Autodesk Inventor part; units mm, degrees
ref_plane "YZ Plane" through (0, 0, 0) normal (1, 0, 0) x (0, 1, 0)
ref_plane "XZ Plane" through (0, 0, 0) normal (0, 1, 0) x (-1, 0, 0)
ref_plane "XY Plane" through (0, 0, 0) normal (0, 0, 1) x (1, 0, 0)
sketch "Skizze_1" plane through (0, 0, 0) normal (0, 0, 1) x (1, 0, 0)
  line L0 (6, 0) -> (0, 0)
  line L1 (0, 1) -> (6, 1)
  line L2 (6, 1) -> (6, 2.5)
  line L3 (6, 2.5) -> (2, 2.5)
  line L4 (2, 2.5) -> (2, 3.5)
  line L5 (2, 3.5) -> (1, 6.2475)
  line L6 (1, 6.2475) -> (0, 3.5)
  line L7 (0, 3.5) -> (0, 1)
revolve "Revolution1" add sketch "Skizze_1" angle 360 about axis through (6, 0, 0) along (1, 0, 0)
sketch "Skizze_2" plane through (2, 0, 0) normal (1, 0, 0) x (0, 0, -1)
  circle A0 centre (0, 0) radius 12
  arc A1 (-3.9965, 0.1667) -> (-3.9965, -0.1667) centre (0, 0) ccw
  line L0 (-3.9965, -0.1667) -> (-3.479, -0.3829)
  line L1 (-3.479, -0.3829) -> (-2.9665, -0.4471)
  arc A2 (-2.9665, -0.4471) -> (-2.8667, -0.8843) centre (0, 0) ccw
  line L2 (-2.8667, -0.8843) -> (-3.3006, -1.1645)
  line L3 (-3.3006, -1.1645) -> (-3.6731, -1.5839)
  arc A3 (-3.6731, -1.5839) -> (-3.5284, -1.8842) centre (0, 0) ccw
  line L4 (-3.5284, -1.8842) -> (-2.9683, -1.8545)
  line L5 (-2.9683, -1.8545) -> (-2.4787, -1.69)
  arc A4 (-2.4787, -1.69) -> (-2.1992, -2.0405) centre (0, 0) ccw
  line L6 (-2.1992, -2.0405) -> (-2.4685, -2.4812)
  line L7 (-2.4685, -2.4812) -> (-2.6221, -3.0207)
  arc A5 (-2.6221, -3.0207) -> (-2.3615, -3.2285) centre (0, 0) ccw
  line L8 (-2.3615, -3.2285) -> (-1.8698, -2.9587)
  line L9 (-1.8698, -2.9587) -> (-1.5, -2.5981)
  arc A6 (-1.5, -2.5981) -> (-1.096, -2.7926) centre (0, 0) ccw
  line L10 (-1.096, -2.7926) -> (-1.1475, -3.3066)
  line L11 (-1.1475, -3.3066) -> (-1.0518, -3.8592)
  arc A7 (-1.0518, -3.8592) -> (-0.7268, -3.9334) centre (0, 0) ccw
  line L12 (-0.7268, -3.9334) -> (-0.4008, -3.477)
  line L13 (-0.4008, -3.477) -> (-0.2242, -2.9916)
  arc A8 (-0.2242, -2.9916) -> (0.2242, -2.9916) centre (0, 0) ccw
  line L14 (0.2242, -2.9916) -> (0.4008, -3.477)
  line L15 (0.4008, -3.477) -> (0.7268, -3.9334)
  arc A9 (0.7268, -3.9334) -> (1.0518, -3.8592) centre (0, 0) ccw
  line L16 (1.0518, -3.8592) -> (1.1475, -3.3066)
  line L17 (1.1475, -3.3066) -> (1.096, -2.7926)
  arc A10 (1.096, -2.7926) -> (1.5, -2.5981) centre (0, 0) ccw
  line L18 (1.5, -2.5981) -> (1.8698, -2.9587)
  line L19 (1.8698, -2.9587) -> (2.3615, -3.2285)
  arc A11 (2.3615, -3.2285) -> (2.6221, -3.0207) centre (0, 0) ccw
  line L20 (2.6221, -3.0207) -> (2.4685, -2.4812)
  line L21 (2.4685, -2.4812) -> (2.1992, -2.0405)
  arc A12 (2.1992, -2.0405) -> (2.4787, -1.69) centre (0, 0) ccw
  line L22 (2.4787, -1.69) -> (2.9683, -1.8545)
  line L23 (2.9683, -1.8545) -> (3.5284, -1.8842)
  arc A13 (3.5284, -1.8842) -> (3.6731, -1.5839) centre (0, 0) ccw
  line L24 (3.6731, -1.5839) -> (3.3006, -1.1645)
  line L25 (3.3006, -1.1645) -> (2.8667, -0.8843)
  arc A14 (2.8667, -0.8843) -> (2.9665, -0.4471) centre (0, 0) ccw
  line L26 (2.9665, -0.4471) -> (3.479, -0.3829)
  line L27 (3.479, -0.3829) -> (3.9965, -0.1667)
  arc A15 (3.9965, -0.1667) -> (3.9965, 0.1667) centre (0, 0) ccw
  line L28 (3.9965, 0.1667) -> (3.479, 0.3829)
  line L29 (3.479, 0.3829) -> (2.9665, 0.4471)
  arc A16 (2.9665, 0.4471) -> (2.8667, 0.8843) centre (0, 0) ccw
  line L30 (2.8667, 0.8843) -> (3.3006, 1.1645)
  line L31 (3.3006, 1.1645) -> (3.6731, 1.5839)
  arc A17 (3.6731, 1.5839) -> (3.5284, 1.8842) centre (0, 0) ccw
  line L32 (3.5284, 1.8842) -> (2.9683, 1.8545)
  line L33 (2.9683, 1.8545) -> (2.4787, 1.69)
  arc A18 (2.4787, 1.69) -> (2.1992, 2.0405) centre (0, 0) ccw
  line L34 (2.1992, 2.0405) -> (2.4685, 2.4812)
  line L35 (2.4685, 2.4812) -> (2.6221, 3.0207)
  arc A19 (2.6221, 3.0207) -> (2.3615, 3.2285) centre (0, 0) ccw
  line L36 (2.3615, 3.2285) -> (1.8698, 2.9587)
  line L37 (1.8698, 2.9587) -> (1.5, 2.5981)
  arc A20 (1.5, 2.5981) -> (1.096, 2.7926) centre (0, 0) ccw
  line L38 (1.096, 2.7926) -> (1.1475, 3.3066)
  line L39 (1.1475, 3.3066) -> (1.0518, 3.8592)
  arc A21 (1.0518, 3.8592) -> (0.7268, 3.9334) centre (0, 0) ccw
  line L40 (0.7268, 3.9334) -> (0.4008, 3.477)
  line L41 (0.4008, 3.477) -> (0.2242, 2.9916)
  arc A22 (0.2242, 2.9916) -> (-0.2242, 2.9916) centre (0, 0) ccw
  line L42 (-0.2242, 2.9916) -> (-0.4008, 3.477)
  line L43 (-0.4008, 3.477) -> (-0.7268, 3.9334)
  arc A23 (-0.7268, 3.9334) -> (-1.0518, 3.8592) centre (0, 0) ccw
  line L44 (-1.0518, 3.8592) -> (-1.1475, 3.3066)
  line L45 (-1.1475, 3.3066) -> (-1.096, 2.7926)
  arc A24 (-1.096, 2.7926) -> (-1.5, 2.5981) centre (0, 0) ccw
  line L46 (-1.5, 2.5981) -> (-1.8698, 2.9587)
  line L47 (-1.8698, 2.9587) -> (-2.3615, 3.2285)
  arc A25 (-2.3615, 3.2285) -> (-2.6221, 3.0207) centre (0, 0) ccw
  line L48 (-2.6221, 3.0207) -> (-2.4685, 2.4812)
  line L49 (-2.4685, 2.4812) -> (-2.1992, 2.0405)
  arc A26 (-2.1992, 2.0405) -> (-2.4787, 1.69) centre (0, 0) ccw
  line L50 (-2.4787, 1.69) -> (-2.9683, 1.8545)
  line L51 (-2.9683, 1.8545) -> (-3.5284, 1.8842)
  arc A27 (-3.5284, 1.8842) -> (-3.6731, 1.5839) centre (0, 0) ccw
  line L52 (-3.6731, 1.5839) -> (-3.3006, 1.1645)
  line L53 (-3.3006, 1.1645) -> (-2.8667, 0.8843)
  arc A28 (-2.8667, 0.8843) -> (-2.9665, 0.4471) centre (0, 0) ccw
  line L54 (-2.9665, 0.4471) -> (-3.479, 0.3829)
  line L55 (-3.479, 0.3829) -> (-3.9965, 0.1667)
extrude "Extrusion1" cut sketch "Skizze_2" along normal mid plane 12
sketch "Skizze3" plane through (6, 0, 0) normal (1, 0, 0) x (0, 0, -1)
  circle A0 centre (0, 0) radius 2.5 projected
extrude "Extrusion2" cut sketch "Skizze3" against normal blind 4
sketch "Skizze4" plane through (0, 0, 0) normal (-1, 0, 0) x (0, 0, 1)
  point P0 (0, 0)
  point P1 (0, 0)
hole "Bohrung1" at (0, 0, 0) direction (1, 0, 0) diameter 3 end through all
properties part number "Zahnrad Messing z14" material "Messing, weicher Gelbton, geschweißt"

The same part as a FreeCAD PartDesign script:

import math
import FreeCAD as App
import Part
import Sketcher
Q = App.Units.Quantity

doc = App.newDocument("Part")
body = doc.addObject("PartDesign::Body", "Body")

# Sketch on XY plane
sketch1 = doc.addObject("Sketcher::SketchObject", "Sketch")
body.addObject(sketch1)
sketch1.AttachmentSupport = (doc.XY_Plane, [""])
sketch1.MapMode = "FlatFace"
sketch1.addGeometry(Part.LineSegment(App.Vector(0, 3.5, 0), App.Vector(0, 1, 0)), False)
sketch1.addGeometry(Part.LineSegment(App.Vector(0, 1, 0), App.Vector(6, 1, 0)), False)
sketch1.addGeometry(Part.LineSegment(App.Vector(6, 1, 0), App.Vector(6, 2.5, 0)), False)
sketch1.addGeometry(Part.LineSegment(App.Vector(6, 2.5, 0), App.Vector(2, 2.5, 0)), False)
sketch1.addGeometry(Part.LineSegment(App.Vector(2, 2.5, 0), App.Vector(2, 3.5, 0)), False)
sketch1.addGeometry(Part.LineSegment(App.Vector(2, 3.5, 0), App.Vector(1, 6.2, 0)), False)
sketch1.addGeometry(Part.LineSegment(App.Vector(1, 6.2, 0), App.Vector(0, 3.5, 0)), False)
sketch1.addConstraint(Sketcher.Constraint("Coincident", 0, 2, 1, 1))
sketch1.addConstraint(Sketcher.Constraint("Coincident", 1, 2, 2, 1))
sketch1.addConstraint(Sketcher.Constraint("Coincident", 2, 2, 3, 1))
sketch1.addConstraint(Sketcher.Constraint("Coincident", 3, 2, 4, 1))
sketch1.addConstraint(Sketcher.Constraint("Coincident", 4, 2, 5, 1))
sketch1.addConstraint(Sketcher.Constraint("Coincident", 5, 2, 6, 1))
sketch1.addConstraint(Sketcher.Constraint("Coincident", 6, 2, 0, 1))
sketch1.addConstraint(Sketcher.Constraint("Vertical", 0))
sketch1.addConstraint(Sketcher.Constraint("Horizontal", 1))
sketch1.addConstraint(Sketcher.Constraint("Vertical", 2))
sketch1.addConstraint(Sketcher.Constraint("Horizontal", 3))
sketch1.addConstraint(Sketcher.Constraint("Vertical", 4))
sketch1.addConstraint(Sketcher.Constraint("PointOnObject", 0, 2, -2))
sketch1.addConstraint(Sketcher.Constraint("Horizontal", 4, 2, 6, 2))
sketch1.addConstraint(Sketcher.Constraint("Equal", 5, 6))
sketch1.addConstraint(Sketcher.Constraint("DistanceX", 1, 1, 1, 2, 6.0))
sketch1.addConstraint(Sketcher.Constraint("DistanceX", 3, 2, 3, 1, 4.0))
sketch1.addConstraint(Sketcher.Constraint("DistanceY", 4, 1, 4, 2, 1.0))
sketch1.addConstraint(Sketcher.Constraint("Angle", 5, Q("109.9998 deg")))
sketch1.addConstraint(Sketcher.Constraint("DistanceY", 0, 2, 0, 1, 2.5))
sketch1.addConstraint(Sketcher.Constraint("DistanceY", -1, 1, 0, 2, 1.0))
revolution = doc.addObject("PartDesign::Revolution", "Revolution")
body.addObject(revolution)
revolution.Profile = sketch1
revolution.ReferenceAxis = (sketch1, ["H_Axis"])
revolution.Angle = 360

# Sketch on YZ plane
sketch2 = doc.addObject("Sketcher::SketchObject", "Sketch001")
body.addObject(sketch2)
sketch2.AttachmentSupport = (doc.YZ_Plane, [""])
sketch2.MapMode = "FlatFace"
sketch2.AttachmentOffset = App.Placement(App.Vector(0, 0, 2), App.Rotation())
sketch2.addGeometry(Part.Circle(App.Vector(0, 0, 0), App.Vector(0, 0, 1), 12), False)
sketch2.addGeometry(Part.ArcOfCircle(Part.Circle(App.Vector(0, 0, 0), App.Vector(0, 0, 1), 3.999975), math.radians(87.611492), math.radians(92.388508)), False)
sketch2.addGeometry(Part.LineSegment(App.Vector(0.1667, 3.9965, 0), App.Vector(0.3829, 3.479, 0)), False)
sketch2.addGeometry(Part.LineSegment(App.Vector(0.3829, 3.479, 0), App.Vector(0.4471, 2.9665, 0)), False)
sketch2.addGeometry(Part.ArcOfCircle(Part.Circle(App.Vector(-0.000504, -0.001881, 0), App.Vector(0, 0, 1), 3.001939), math.radians(72.8578), math.radians(81.424936)), False)
sketch2.addGeometry(Part.LineSegment(App.Vector(0.8843, 2.8667, 0), App.Vector(1.1645, 3.3006, 0)), False)
sketch2.addGeometry(Part.LineSegment(App.Vector(1.1645, 3.3006, 0), App.Vector(1.5839, 3.6731, 0)), False)
sketch2.addGeometry(Part.ArcOfCircle(Part.Circle(App.Vector(-0.019313, -0.038054, 0), App.Vector(0, 0, 1), 4.042643), math.radians(61.909952), math.radians(66.635726)), False)
sketch2.addGeometry(Part.LineSegment(App.Vector(1.8842, 3.5284, 0), App.Vector(1.8545, 2.9683, 0)), False)
sketch2.addGeometry(Part.LineSegment(App.Vector(1.8545, 2.9683, 0), App.Vector(1.69, 2.4787, 0)), False)
sketch2.addGeometry(Part.ArcOfCircle(Part.Circle(App.Vector(0.001307, 0.001519, 0), App.Vector(0, 0, 1), 2.998018), math.radians(47.142257), math.radians(55.717768)), False)
sketch2.addGeometry(Part.LineSegment(App.Vector(2.0405, 2.1992, 0), App.Vector(2.4812, 2.4685, 0)), False)
sketch2.addGeometry(Part.LineSegment(App.Vector(2.4812, 2.4685, 0), App.Vector(3.0207, 2.6221, 0)), False)
sketch2.addGeometry(Part.ArcOfCircle(Part.Circle(App.Vector(-0.008168, -0.00624, 0), App.Vector(0, 0, 1), 4.010263), math.radians(36.186822), math.radians(40.950239)), False)
sketch2.addGeometry(Part.LineSegment(App.Vector(3.2285, 2.3615, 0), App.Vector(2.9587, 1.8698, 0)), False)
sketch2.addGeometry(Part.LineSegment(App.Vector(2.9587, 1.8698, 0), App.Vector(2.5981, 1.5, 0)), False)
sketch2.addGeometry(Part.ArcOfCircle(Part.Circle(App.Vector(-0.008028, -0.003503, 0), App.Vector(0, 0, 1), 3.008725), math.radians(21.434546), math.radians(29.981097)), False)
sketch2.addGeometry(Part.LineSegment(App.Vector(2.7926, 1.096, 0), App.Vector(3.3066, 1.1475, 0)), False)
sketch2.addGeometry(Part.LineSegment(App.Vector(3.3066, 1.1475, 0), App.Vector(3.8592, 1.0518, 0)), False)
sketch2.addGeometry(Part.ArcOfCircle(Part.Circle(App.Vector(0.01166, 0.002407, 0), App.Vector(0, 0, 1), 3.988081), math.radians(10.465273), math.radians(15.256007)), False)
sketch2.addGeometry(Part.LineSegment(App.Vector(3.9334, 0.7268, 0), App.Vector(3.477, 0.4008, 0)), False)
sketch2.addGeometry(Part.LineSegment(App.Vector(3.477, 0.4008, 0), App.Vector(2.9916, 0.2242, 0)), False)
sketch2.addGeometry(Part.ArcOfCircle(Part.Circle(App.Vector(0, 0, 0), App.Vector(0, 0, 1), 2.999989), math.radians(-4.285916), math.radians(4.285916)), False)
sketch2.addGeometry(Part.LineSegment(App.Vector(2.9916, -0.2242, 0), App.Vector(3.477, -0.4008, 0)), False)
sketch2.addGeometry(Part.LineSegment(App.Vector(3.477, -0.4008, 0), App.Vector(3.9334, -0.7268, 0)), False)
sketch2.addGeometry(Part.ArcOfCircle(Part.Circle(App.Vector(-0.011619, 0.002908, 0), App.Vector(0, 0, 1), 4.011938), math.radians(-15.241755), math.radians(-10.479525)), False)
sketch2.addGeometry(Part.LineSegment(App.Vector(3.8592, -1.0518, 0), App.Vector(3.3066, -1.1475, 0)), False)
sketch2.addGeometry(Part.LineSegment(App.Vector(3.3066, -1.1475, 0), App.Vector(2.7926, -1.096, 0)), False)
sketch2.addGeometry(Part.ArcOfCircle(Part.Circle(App.Vector(0.007699, -0.004069, 0), App.Vector(0, 0, 1), 2.991318), math.radians(-30.00601), math.radians(-21.409634)), False)
sketch2.addGeometry(Part.LineSegment(App.Vector(2.5981, -1.5, 0), App.Vector(2.9587, -1.8698, 0)), False)
sketch2.addGeometry(Part.LineSegment(App.Vector(2.9587, -1.8698, 0), App.Vector(3.2285, -2.3615, 0)), False)
sketch2.addGeometry(Part.ArcOfCircle(Part.Circle(App.Vector(0.00786, -0.006541, 0), App.Vector(0, 0, 1), 3.989781), math.radians(-40.962473), math.radians(-36.174588)), False)
sketch2.addGeometry(Part.LineSegment(App.Vector(3.0207, -2.6221, 0), App.Vector(2.4812, -2.4685, 0)), False)
sketch2.addGeometry(Part.LineSegment(App.Vector(2.4812, -2.4685, 0), App.Vector(2.0405, -2.1992, 0)), False)
sketch2.addGeometry(Part.ArcOfCircle(Part.Circle(App.Vector(-0.001191, 0.001614, 0), App.Vector(0, 0, 1), 3.002014), math.radians(-55.71205), math.radians(-47.147975)), False)
sketch2.addGeometry(Part.LineSegment(App.Vector(1.69, -2.4787, 0), App.Vector(1.8545, -2.9683, 0)), False)
sketch2.addGeometry(Part.LineSegment(App.Vector(1.8545, -2.9683, 0), App.Vector(1.8842, -3.5284, 0)), False)
sketch2.addGeometry(Part.ArcOfCircle(Part.Circle(App.Vector(0.017341, -0.038016, 0), App.Vector(0, 0, 1), 3.958275), math.radians(-66.686118), math.radians(-61.859559)), False)
sketch2.addGeometry(Part.LineSegment(App.Vector(1.5839, -3.6731, 0), App.Vector(1.1645, -3.3006, 0)), False)
sketch2.addGeometry(Part.LineSegment(App.Vector(1.1645, -3.3006, 0), App.Vector(0.8843, -2.8667, 0)), False)
sketch2.addGeometry(Part.ArcOfCircle(Part.Circle(App.Vector(0.000362, -0.001911, 0), App.Vector(0, 0, 1), 2.99806), math.radians(-81.430489), math.radians(-72.852247)), False)
sketch2.addGeometry(Part.LineSegment(App.Vector(0.4471, -2.9665, 0), App.Vector(0.3829, -3.479, 0)), False)
sketch2.addGeometry(Part.LineSegment(App.Vector(0.3829, -3.479, 0), App.Vector(0.1667, -3.9965, 0)), False)
sketch2.addGeometry(Part.ArcOfCircle(Part.Circle(App.Vector(0, 0, 0), App.Vector(0, 0, 1), 3.999975), math.radians(-92.388508), math.radians(-87.611492)), False)
sketch2.addGeometry(Part.LineSegment(App.Vector(-0.1667, -3.9965, 0), App.Vector(-0.3829, -3.479, 0)), False)
sketch2.addGeometry(Part.LineSegment(App.Vector(-0.3829, -3.479, 0), App.Vector(-0.4471, -2.9665, 0)), False)
sketch2.addGeometry(Part.ArcOfCircle(Part.Circle(App.Vector(0.000504, 0.001881, 0), App.Vector(0, 0, 1), 3.001939), math.radians(-107.1422), math.radians(-98.575064)), False)
sketch2.addGeometry(Part.LineSegment(App.Vector(-0.8843, -2.8667, 0), App.Vector(-1.1645, -3.3006, 0)), False)
sketch2.addGeometry(Part.LineSegment(App.Vector(-1.1645, -3.3006, 0), App.Vector(-1.5839, -3.6731, 0)), False)
sketch2.addGeometry(Part.ArcOfCircle(Part.Circle(App.Vector(0.019313, 0.038054, 0), App.Vector(0, 0, 1), 4.042643), math.radians(-118.090048), math.radians(-113.364274)), False)
sketch2.addGeometry(Part.LineSegment(App.Vector(-1.8842, -3.5284, 0), App.Vector(-1.8545, -2.9683, 0)), False)
sketch2.addGeometry(Part.LineSegment(App.Vector(-1.8545, -2.9683, 0), App.Vector(-1.69, -2.4787, 0)), False)
sketch2.addGeometry(Part.ArcOfCircle(Part.Circle(App.Vector(-0.001307, -0.001519, 0), App.Vector(0, 0, 1), 2.998018), math.radians(-132.857743), math.radians(-124.282232)), False)
sketch2.addGeometry(Part.LineSegment(App.Vector(-2.0405, -2.1992, 0), App.Vector(-2.4812, -2.4685, 0)), False)
sketch2.addGeometry(Part.LineSegment(App.Vector(-2.4812, -2.4685, 0), App.Vector(-3.0207, -2.6221, 0)), False)
sketch2.addGeometry(Part.ArcOfCircle(Part.Circle(App.Vector(0.008168, 0.00624, 0), App.Vector(0, 0, 1), 4.010263), math.radians(-143.813178), math.radians(-139.049761)), False)
sketch2.addGeometry(Part.LineSegment(App.Vector(-3.2285, -2.3615, 0), App.Vector(-2.9587, -1.8698, 0)), False)
sketch2.addGeometry(Part.LineSegment(App.Vector(-2.9587, -1.8698, 0), App.Vector(-2.5981, -1.5, 0)), False)
sketch2.addGeometry(Part.ArcOfCircle(Part.Circle(App.Vector(0.008028, 0.003503, 0), App.Vector(0, 0, 1), 3.008725), math.radians(-158.565454), math.radians(-150.018903)), False)
sketch2.addGeometry(Part.LineSegment(App.Vector(-2.7926, -1.096, 0), App.Vector(-3.3066, -1.1475, 0)), False)
sketch2.addGeometry(Part.LineSegment(App.Vector(-3.3066, -1.1475, 0), App.Vector(-3.8592, -1.0518, 0)), False)
sketch2.addGeometry(Part.ArcOfCircle(Part.Circle(App.Vector(-0.01166, -0.002407, 0), App.Vector(0, 0, 1), 3.988081), math.radians(-169.534727), math.radians(-164.743993)), False)
sketch2.addGeometry(Part.LineSegment(App.Vector(-3.9334, -0.7268, 0), App.Vector(-3.477, -0.4008, 0)), False)
sketch2.addGeometry(Part.LineSegment(App.Vector(-3.477, -0.4008, 0), App.Vector(-2.9916, -0.2242, 0)), False)
sketch2.addGeometry(Part.ArcOfCircle(Part.Circle(App.Vector(0, 0, 0), App.Vector(0, 0, 1), 2.999989), math.radians(175.714084), math.radians(184.285916)), False)
sketch2.addGeometry(Part.LineSegment(App.Vector(-2.9916, 0.2242, 0), App.Vector(-3.477, 0.4008, 0)), False)
sketch2.addGeometry(Part.LineSegment(App.Vector(-3.477, 0.4008, 0), App.Vector(-3.9334, 0.7268, 0)), False)
sketch2.addGeometry(Part.ArcOfCircle(Part.Circle(App.Vector(0.011619, -0.002908, 0), App.Vector(0, 0, 1), 4.011938), math.radians(164.758245), math.radians(169.520475)), False)
sketch2.addGeometry(Part.LineSegment(App.Vector(-3.8592, 1.0518, 0), App.Vector(-3.3066, 1.1475, 0)), False)
sketch2.addGeometry(Part.LineSegment(App.Vector(-3.3066, 1.1475, 0), App.Vector(-2.7926, 1.096, 0)), False)
sketch2.addGeometry(Part.ArcOfCircle(Part.Circle(App.Vector(-0.007699, 0.004069, 0), App.Vector(0, 0, 1), 2.991318), math.radians(149.99399), math.radians(158.590366)), False)
sketch2.addGeometry(Part.LineSegment(App.Vector(-2.5981, 1.5, 0), App.Vector(-2.9587, 1.8698, 0)), False)
sketch2.addGeometry(Part.LineSegment(App.Vector(-2.9587, 1.8698, 0), App.Vector(-3.2285, 2.3615, 0)), False)
sketch2.addGeometry(Part.ArcOfCircle(Part.Circle(App.Vector(-0.00786, 0.006541, 0), App.Vector(0, 0, 1), 3.989781), math.radians(139.037527), math.radians(143.825412)), False)
sketch2.addGeometry(Part.LineSegment(App.Vector(-3.0207, 2.6221, 0), App.Vector(-2.4812, 2.4685, 0)), False)
sketch2.addGeometry(Part.LineSegment(App.Vector(-2.4812, 2.4685, 0), App.Vector(-2.0405, 2.1992, 0)), False)
sketch2.addGeometry(Part.ArcOfCircle(Part.Circle(App.Vector(0.001191, -0.001614, 0), App.Vector(0, 0, 1), 3.002014), math.radians(124.28795), math.radians(132.852025)), False)
sketch2.addGeometry(Part.LineSegment(App.Vector(-1.69, 2.4787, 0), App.Vector(-1.8545, 2.9683, 0)), False)
sketch2.addGeometry(Part.LineSegment(App.Vector(-1.8545, 2.9683, 0), App.Vector(-1.8842, 3.5284, 0)), False)
sketch2.addGeometry(Part.ArcOfCircle(Part.Circle(App.Vector(-0.017341, 0.038016, 0), App.Vector(0, 0, 1), 3.958275), math.radians(113.313882), math.radians(118.140441)), False)
sketch2.addGeometry(Part.LineSegment(App.Vector(-1.5839, 3.6731, 0), App.Vector(-1.1645, 3.3006, 0)), False)
sketch2.addGeometry(Part.LineSegment(App.Vector(-1.1645, 3.3006, 0), App.Vector(-0.8843, 2.8667, 0)), False)
sketch2.addGeometry(Part.ArcOfCircle(Part.Circle(App.Vector(-0.000362, 0.001911, 0), App.Vector(0, 0, 1), 2.99806), math.radians(98.569511), math.radians(107.147753)), False)
sketch2.addGeometry(Part.LineSegment(App.Vector(-0.4471, 2.9665, 0), App.Vector(-0.3829, 3.479, 0)), False)
sketch2.addGeometry(Part.LineSegment(App.Vector(-0.3829, 3.479, 0), App.Vector(-0.1667, 3.9965, 0)), False)
sketch2.addConstraint(Sketcher.Constraint("Coincident", 1, 1, 2, 1))
sketch2.addConstraint(Sketcher.Constraint("Coincident", 2, 2, 3, 1))
sketch2.addConstraint(Sketcher.Constraint("Coincident", 3, 2, 4, 2))
sketch2.addConstraint(Sketcher.Constraint("Coincident", 4, 1, 5, 1))
sketch2.addConstraint(Sketcher.Constraint("Coincident", 5, 2, 6, 1))
sketch2.addConstraint(Sketcher.Constraint("Coincident", 6, 2, 7, 2))
sketch2.addConstraint(Sketcher.Constraint("Coincident", 7, 1, 8, 1))
sketch2.addConstraint(Sketcher.Constraint("Coincident", 8, 2, 9, 1))
sketch2.addConstraint(Sketcher.Constraint("Coincident", 9, 2, 10, 2))
sketch2.addConstraint(Sketcher.Constraint("Coincident", 10, 1, 11, 1))
sketch2.addConstraint(Sketcher.Constraint("Coincident", 11, 2, 12, 1))
sketch2.addConstraint(Sketcher.Constraint("Coincident", 12, 2, 13, 2))
sketch2.addConstraint(Sketcher.Constraint("Coincident", 13, 1, 14, 1))
sketch2.addConstraint(Sketcher.Constraint("Coincident", 14, 2, 15, 1))
sketch2.addConstraint(Sketcher.Constraint("Coincident", 15, 2, 16, 2))
sketch2.addConstraint(Sketcher.Constraint("Coincident", 16, 1, 17, 1))
sketch2.addConstraint(Sketcher.Constraint("Coincident", 17, 2, 18, 1))
sketch2.addConstraint(Sketcher.Constraint("Coincident", 18, 2, 19, 2))
sketch2.addConstraint(Sketcher.Constraint("Coincident", 19, 1, 20, 1))
sketch2.addConstraint(Sketcher.Constraint("Coincident", 20, 2, 21, 1))
sketch2.addConstraint(Sketcher.Constraint("Coincident", 21, 2, 22, 2))
sketch2.addConstraint(Sketcher.Constraint("Coincident", 22, 1, 23, 1))
sketch2.addConstraint(Sketcher.Constraint("Coincident", 23, 2, 24, 1))
sketch2.addConstraint(Sketcher.Constraint("Coincident", 24, 2, 25, 2))
sketch2.addConstraint(Sketcher.Constraint("Coincident", 25, 1, 26, 1))
sketch2.addConstraint(Sketcher.Constraint("Coincident", 26, 2, 27, 1))
sketch2.addConstraint(Sketcher.Constraint("Coincident", 27, 2, 28, 2))
sketch2.addConstraint(Sketcher.Constraint("Coincident", 28, 1, 29, 1))
sketch2.addConstraint(Sketcher.Constraint("Coincident", 29, 2, 30, 1))
sketch2.addConstraint(Sketcher.Constraint("Coincident", 30, 2, 31, 2))
sketch2.addConstraint(Sketcher.Constraint("Coincident", 31, 1, 32, 1))
sketch2.addConstraint(Sketcher.Constraint("Coincident", 32, 2, 33, 1))
sketch2.addConstraint(Sketcher.Constraint("Coincident", 33, 2, 34, 2))
sketch2.addConstraint(Sketcher.Constraint("Coincident", 34, 1, 35, 1))
sketch2.addConstraint(Sketcher.Constraint("Coincident", 35, 2, 36, 1))
sketch2.addConstraint(Sketcher.Constraint("Coincident", 36, 2, 37, 2))
sketch2.addConstraint(Sketcher.Constraint("Coincident", 37, 1, 38, 1))
sketch2.addConstraint(Sketcher.Constraint("Coincident", 38, 2, 39, 1))
sketch2.addConstraint(Sketcher.Constraint("Coincident", 39, 2, 40, 2))
sketch2.addConstraint(Sketcher.Constraint("Coincident", 40, 1, 41, 1))
sketch2.addConstraint(Sketcher.Constraint("Coincident", 41, 2, 42, 1))
sketch2.addConstraint(Sketcher.Constraint("Coincident", 42, 2, 43, 2))
sketch2.addConstraint(Sketcher.Constraint("Coincident", 43, 1, 44, 1))
sketch2.addConstraint(Sketcher.Constraint("Coincident", 44, 2, 45, 1))
sketch2.addConstraint(Sketcher.Constraint("Coincident", 45, 2, 46, 2))
sketch2.addConstraint(Sketcher.Constraint("Coincident", 46, 1, 47, 1))
sketch2.addConstraint(Sketcher.Constraint("Coincident", 47, 2, 48, 1))
sketch2.addConstraint(Sketcher.Constraint("Coincident", 48, 2, 49, 2))
sketch2.addConstraint(Sketcher.Constraint("Coincident", 49, 1, 50, 1))
sketch2.addConstraint(Sketcher.Constraint("Coincident", 50, 2, 51, 1))
sketch2.addConstraint(Sketcher.Constraint("Coincident", 51, 2, 52, 2))
sketch2.addConstraint(Sketcher.Constraint("Coincident", 52, 1, 53, 1))
sketch2.addConstraint(Sketcher.Constraint("Coincident", 53, 2, 54, 1))
sketch2.addConstraint(Sketcher.Constraint("Coincident", 54, 2, 55, 2))
sketch2.addConstraint(Sketcher.Constraint("Coincident", 55, 1, 56, 1))
sketch2.addConstraint(Sketcher.Constraint("Coincident", 56, 2, 57, 1))
sketch2.addConstraint(Sketcher.Constraint("Coincident", 57, 2, 58, 2))
sketch2.addConstraint(Sketcher.Constraint("Coincident", 58, 1, 59, 1))
sketch2.addConstraint(Sketcher.Constraint("Coincident", 59, 2, 60, 1))
sketch2.addConstraint(Sketcher.Constraint("Coincident", 60, 2, 61, 2))
sketch2.addConstraint(Sketcher.Constraint("Coincident", 61, 1, 62, 1))
sketch2.addConstraint(Sketcher.Constraint("Coincident", 62, 2, 63, 1))
sketch2.addConstraint(Sketcher.Constraint("Coincident", 63, 2, 64, 2))
sketch2.addConstraint(Sketcher.Constraint("Coincident", 64, 1, 65, 1))
sketch2.addConstraint(Sketcher.Constraint("Coincident", 65, 2, 66, 1))
sketch2.addConstraint(Sketcher.Constraint("Coincident", 66, 2, 67, 2))
sketch2.addConstraint(Sketcher.Constraint("Coincident", 67, 1, 68, 1))
sketch2.addConstraint(Sketcher.Constraint("Coincident", 68, 2, 69, 1))
sketch2.addConstraint(Sketcher.Constraint("Coincident", 69, 2, 70, 2))
sketch2.addConstraint(Sketcher.Constraint("Coincident", 70, 1, 71, 1))
sketch2.addConstraint(Sketcher.Constraint("Coincident", 71, 2, 72, 1))
sketch2.addConstraint(Sketcher.Constraint("Coincident", 72, 2, 73, 2))
sketch2.addConstraint(Sketcher.Constraint("Coincident", 73, 1, 74, 1))
sketch2.addConstraint(Sketcher.Constraint("Coincident", 74, 2, 75, 1))
sketch2.addConstraint(Sketcher.Constraint("Coincident", 75, 2, 76, 2))
sketch2.addConstraint(Sketcher.Constraint("Coincident", 76, 1, 77, 1))
sketch2.addConstraint(Sketcher.Constraint("Coincident", 77, 2, 78, 1))
sketch2.addConstraint(Sketcher.Constraint("Coincident", 78, 2, 79, 2))
sketch2.addConstraint(Sketcher.Constraint("Coincident", 79, 1, 80, 1))
sketch2.addConstraint(Sketcher.Constraint("Coincident", 80, 2, 81, 1))
sketch2.addConstraint(Sketcher.Constraint("Coincident", 81, 2, 82, 2))
sketch2.addConstraint(Sketcher.Constraint("Coincident", 82, 1, 83, 1))
sketch2.addConstraint(Sketcher.Constraint("Coincident", 83, 2, 84, 1))
sketch2.addConstraint(Sketcher.Constraint("Coincident", 84, 2, 1, 2))
sketch2.addConstraint(Sketcher.Constraint("Coincident", 0, 3, -1, 1))
sketch2.addConstraint(Sketcher.Constraint("Coincident", 1, 3, -1, 1))
sketch2.addConstraint(Sketcher.Constraint("Coincident", 22, 3, -1, 1))
sketch2.addConstraint(Sketcher.Constraint("Coincident", 43, 3, -1, 1))
sketch2.addConstraint(Sketcher.Constraint("Coincident", 64, 3, -1, 1))
sketch2.addConstraint(Sketcher.Constraint("Equal", 4, 34))
sketch2.addConstraint(Sketcher.Constraint("Equal", 10, 40))
sketch2.addConstraint(Sketcher.Constraint("Equal", 1, 43))
sketch2.addConstraint(Sketcher.Constraint("Equal", 34, 46))
sketch2.addConstraint(Sketcher.Constraint("Equal", 7, 49))
sketch2.addConstraint(Sketcher.Constraint("Equal", 40, 52))
sketch2.addConstraint(Sketcher.Constraint("Equal", 13, 55))
sketch2.addConstraint(Sketcher.Constraint("Equal", 16, 58))
sketch2.addConstraint(Sketcher.Constraint("Equal", 19, 61))
sketch2.addConstraint(Sketcher.Constraint("Equal", 22, 64))
sketch2.addConstraint(Sketcher.Constraint("Equal", 25, 67))
sketch2.addConstraint(Sketcher.Constraint("Equal", 28, 70))
sketch2.addConstraint(Sketcher.Constraint("Equal", 31, 73))
sketch2.addConstraint(Sketcher.Constraint("Equal", 46, 76))
sketch2.addConstraint(Sketcher.Constraint("Equal", 37, 79))
sketch2.addConstraint(Sketcher.Constraint("Equal", 52, 82))
sketch2.addConstraint(Sketcher.Constraint("Symmetric", 4, 3, 46, 3, -1, 1))
sketch2.addConstraint(Sketcher.Constraint("Symmetric", 7, 3, 49, 3, -1, 1))
sketch2.addConstraint(Sketcher.Constraint("Symmetric", 10, 3, 52, 3, -1, 1))
sketch2.addConstraint(Sketcher.Constraint("Symmetric", 13, 3, 55, 3, -1, 1))
sketch2.addConstraint(Sketcher.Constraint("Symmetric", 16, 3, 58, 3, -1, 1))
sketch2.addConstraint(Sketcher.Constraint("Symmetric", 19, 3, 61, 3, -1, 1))
sketch2.addConstraint(Sketcher.Constraint("Symmetric", 25, 3, 67, 3, -1, 1))
sketch2.addConstraint(Sketcher.Constraint("Symmetric", 28, 3, 70, 3, -1, 1))
sketch2.addConstraint(Sketcher.Constraint("Symmetric", 31, 3, 73, 3, -1, 1))
sketch2.addConstraint(Sketcher.Constraint("Symmetric", 34, 3, 76, 3, -1, 1))
sketch2.addConstraint(Sketcher.Constraint("Symmetric", 37, 3, 79, 3, -1, 1))
sketch2.addConstraint(Sketcher.Constraint("Symmetric", 40, 3, 82, 3, -1, 1))
sketch2.addConstraint(Sketcher.Constraint("Symmetric", 2, 2, 44, 2, -1, 1))
sketch2.addConstraint(Sketcher.Constraint("Symmetric", 5, 2, 47, 2, -1, 1))
sketch2.addConstraint(Sketcher.Constraint("Symmetric", 8, 2, 50, 2, -1, 1))
sketch2.addConstraint(Sketcher.Constraint("Symmetric", 11, 2, 53, 2, -1, 1))
sketch2.addConstraint(Sketcher.Constraint("Symmetric", 14, 2, 56, 2, -1, 1))
sketch2.addConstraint(Sketcher.Constraint("Symmetric", 17, 2, 59, 2, -1, 1))
sketch2.addConstraint(Sketcher.Constraint("Symmetric", 20, 2, 62, 2, -1, 1))
sketch2.addConstraint(Sketcher.Constraint("Symmetric", 23, 2, 65, 2, -1, 1))
sketch2.addConstraint(Sketcher.Constraint("Symmetric", 26, 2, 68, 2, -1, 1))
sketch2.addConstraint(Sketcher.Constraint("Symmetric", 29, 2, 71, 2, -1, 1))
sketch2.addConstraint(Sketcher.Constraint("Symmetric", 32, 2, 74, 2, -1, 1))
sketch2.addConstraint(Sketcher.Constraint("Symmetric", 35, 2, 77, 2, -1, 1))
sketch2.addConstraint(Sketcher.Constraint("Symmetric", 38, 2, 80, 2, -1, 1))
sketch2.addConstraint(Sketcher.Constraint("Symmetric", 41, 2, 83, 2, -1, 1))
sketch2.addConstraint(Sketcher.Constraint("Symmetric", 10, 3, 34, 3, -2))
sketch2.addConstraint(Sketcher.Constraint("Symmetric", 4, 3, 40, 3, -2))
sketch2.addConstraint(Sketcher.Constraint("Symmetric", 41, 2, 44, 2, -2))
sketch2.addConstraint(Sketcher.Constraint("Symmetric", 40, 1, 45, 2, -2))
sketch2.addConstraint(Sketcher.Constraint("Symmetric", 39, 2, 46, 1, -2))
sketch2.addConstraint(Sketcher.Constraint("Symmetric", 38, 2, 47, 2, -2))
sketch2.addConstraint(Sketcher.Constraint("Symmetric", 37, 1, 48, 2, -2))
sketch2.addConstraint(Sketcher.Constraint("Symmetric", 36, 2, 49, 1, -2))
sketch2.addConstraint(Sketcher.Constraint("Symmetric", 35, 2, 50, 2, -2))
sketch2.addConstraint(Sketcher.Constraint("Symmetric", 34, 1, 51, 2, -2))
sketch2.addConstraint(Sketcher.Constraint("Symmetric", 33, 2, 52, 1, -2))
sketch2.addConstraint(Sketcher.Constraint("Symmetric", 32, 2, 53, 2, -2))
sketch2.addConstraint(Sketcher.Constraint("Symmetric", 31, 1, 54, 2, -2))
sketch2.addConstraint(Sketcher.Constraint("Symmetric", 30, 2, 55, 1, -2))
sketch2.addConstraint(Sketcher.Constraint("Symmetric", 29, 2, 56, 2, -2))
sketch2.addConstraint(Sketcher.Constraint("Symmetric", 28, 1, 57, 2, -2))
sketch2.addConstraint(Sketcher.Constraint("Symmetric", 27, 2, 58, 1, -2))
sketch2.addConstraint(Sketcher.Constraint("Symmetric", 26, 2, 59, 2, -2))
sketch2.addConstraint(Sketcher.Constraint("Symmetric", 25, 1, 60, 2, -2))
sketch2.addConstraint(Sketcher.Constraint("Symmetric", 24, 2, 61, 1, -2))
sketch2.addConstraint(Sketcher.Constraint("Symmetric", 23, 2, 62, 2, -2))
sketch2.addConstraint(Sketcher.Constraint("Parallel", 2, 44))
sketch2.addConstraint(Sketcher.Constraint("Parallel", 3, 45))
sketch2.addConstraint(Sketcher.Constraint("Parallel", 5, 47))
sketch2.addConstraint(Sketcher.Constraint("Parallel", 6, 48))
sketch2.addConstraint(Sketcher.Constraint("Parallel", 8, 50))
sketch2.addConstraint(Sketcher.Constraint("Parallel", 9, 51))
sketch2.addConstraint(Sketcher.Constraint("Parallel", 11, 53))
sketch2.addConstraint(Sketcher.Constraint("Parallel", 12, 54))
sketch2.addConstraint(Sketcher.Constraint("Parallel", 14, 56))
sketch2.addConstraint(Sketcher.Constraint("Parallel", 15, 57))
sketch2.addConstraint(Sketcher.Constraint("Parallel", 17, 59))
sketch2.addConstraint(Sketcher.Constraint("Parallel", 18, 60))
sketch2.addConstraint(Sketcher.Constraint("Parallel", 20, 62))
sketch2.addConstraint(Sketcher.Constraint("Parallel", 21, 63))
sketch2.addConstraint(Sketcher.Constraint("Parallel", 23, 65))
sketch2.addConstraint(Sketcher.Constraint("Parallel", 24, 66))
sketch2.addConstraint(Sketcher.Constraint("Parallel", 26, 68))
sketch2.addConstraint(Sketcher.Constraint("Parallel", 27, 69))
sketch2.addConstraint(Sketcher.Constraint("Parallel", 29, 71))
sketch2.addConstraint(Sketcher.Constraint("Parallel", 30, 72))
sketch2.addConstraint(Sketcher.Constraint("Parallel", 32, 74))
sketch2.addConstraint(Sketcher.Constraint("Parallel", 33, 75))
sketch2.addConstraint(Sketcher.Constraint("Parallel", 35, 77))
sketch2.addConstraint(Sketcher.Constraint("Parallel", 36, 78))
sketch2.addConstraint(Sketcher.Constraint("Parallel", 38, 80))
sketch2.addConstraint(Sketcher.Constraint("Parallel", 39, 81))
sketch2.addConstraint(Sketcher.Constraint("Parallel", 41, 83))
sketch2.addConstraint(Sketcher.Constraint("Parallel", 42, 84))
sketch2.addConstraint(Sketcher.Constraint("Horizontal", 7, 3, 37, 3))
sketch2.addConstraint(Sketcher.Constraint("Horizontal", 42, 2, 43, 1))
sketch2.addConstraint(Sketcher.Constraint("Horizontal", 22, 1, 63, 2))
sketch2.addConstraint(Sketcher.Constraint("Vertical", 13, 3, 16, 3))
sketch2.addConstraint(Sketcher.Constraint("Vertical", 28, 3, 31, 3))
sketch2.addConstraint(Sketcher.Constraint("Vertical", 25, 3, 61, 3))
sketch2.addConstraint(Sketcher.Constraint("Equal", 3, 5))
sketch2.addConstraint(Sketcher.Constraint("Equal", 2, 6))
sketch2.addConstraint(Sketcher.Constraint("Equal", 6, 8))
sketch2.addConstraint(Sketcher.Constraint("Equal", 5, 9))
sketch2.addConstraint(Sketcher.Constraint("Equal", 9, 11))
sketch2.addConstraint(Sketcher.Constraint("Equal", 8, 12))
sketch2.addConstraint(Sketcher.Constraint("Equal", 12, 14))
sketch2.addConstraint(Sketcher.Constraint("Equal", 11, 15))
sketch2.addConstraint(Sketcher.Constraint("Equal", 15, 17))
sketch2.addConstraint(Sketcher.Constraint("Equal", 14, 18))
sketch2.addConstraint(Sketcher.Constraint("Equal", 18, 20))
sketch2.addConstraint(Sketcher.Constraint("Equal", 17, 21))
sketch2.addConstraint(Sketcher.Constraint("Diameter", 0, 24.0))
sketch2.addConstraint(Sketcher.Constraint("Radius", 1, 4.0))
sketch2.addConstraint(Sketcher.Constraint("Radius", 22, 3.0))
sketch2.addConstraint(Sketcher.Constraint("Radius", 4, 3.002))
sketch2.addConstraint(Sketcher.Constraint("Radius", 10, 2.998))
sketch2.addConstraint(Sketcher.Constraint("Radius", 19, 3.988))
sketch2.addConstraint(Sketcher.Constraint("Radius", 25, 4.012))
sketch2.addConstraint(Sketcher.Constraint("DistanceY", -1, 1, 15, 2, 1.5))
sketch2.addConstraint(Sketcher.Constraint("Angle", 3, Q("-82.8598 deg")))
sketch2.addConstraint(Sketcher.Constraint("Angle", 6, Q("41.6106 deg")))
sketch2.addConstraint(Sketcher.Constraint("Radius", 7, 4.0426))
sketch2.addConstraint(Sketcher.Constraint("Radius", 13, 4.0103))
sketch2.addConstraint(Sketcher.Constraint("Radius", 16, 3.0087))
sketch2.addConstraint(Sketcher.Constraint("Radius", 28, 2.9913))
sketch2.addConstraint(Sketcher.Constraint("Radius", 37, 3.9583))
sketch2.addConstraint(Sketcher.Constraint("DistanceX", -1, 1, 9, 2, 1.69))
sketch2.addConstraint(Sketcher.Constraint("Distance", 6, 0.561))
sketch2.addConstraint(Sketcher.Constraint("DistanceX", 16, 3, -1, 1, 0.008))
sketch2.addConstraint(Sketcher.Constraint("DistanceY", -1, 1, 25, 3, 0.003))
sketch2.addConstraint(Sketcher.Constraint("DistanceY", 28, 3, -1, 1, 0.004))
sketch2.addConstraint(Sketcher.Constraint("DistanceX", -1, 1, 2, 2, 0.383))
sketch2.addConstraint(Sketcher.Constraint("DistanceY", -1, 1, 2, 2, 3.479))
sketch2.addConstraint(Sketcher.Constraint("DistanceX", -1, 1, 6, 2, 1.584))
sketch2.addConstraint(Sketcher.Constraint("DistanceY", -1, 1, 6, 2, 3.673))
sketch2.addConstraint(Sketcher.Constraint("DistanceY", -1, 1, 12, 2, 2.622))
sketch2.addConstraint(Sketcher.Constraint("DistanceY", -1, 1, 16, 1, 1.096))
sketch2.addConstraint(Sketcher.Constraint("DistanceX", -1, 1, 20, 2, 3.477))
sketch2.addConstraint(Sketcher.Constraint("DistanceY", 13, 3, -1, 1, 0.0062))
sketch2.addConstraint(Sketcher.Constraint("DistanceX", -1, 1, 7, 1, 1.8842))
sketch2.addConstraint(Sketcher.Constraint("DistanceX", -1, 1, 10, 1, 2.0405))
sketch2.addConstraint(Sketcher.Constraint("DistanceX", -1, 1, 13, 1, 3.2285))
sketch2.addConstraint(Sketcher.Constraint("DistanceX", -1, 1, 17, 2, 3.3066))
sketch2.addConstraint(Sketcher.Constraint("DistanceX", -1, 1, 19, 1, 3.9334))
pocket1 = doc.addObject("PartDesign::Pocket", "Pocket")
body.addObject(pocket1)
pocket1.Profile = sketch2
pocket1.Length = 12
pocket1.Midplane = True

# Sketch on YZ plane
sketch3 = doc.addObject("Sketcher::SketchObject", "Sketch002")
body.addObject(sketch3)
sketch3.AttachmentSupport = (doc.YZ_Plane, [""])
sketch3.MapMode = "FlatFace"
sketch3.AttachmentOffset = App.Placement(App.Vector(0, 0, 6), App.Rotation())
sketch3.addGeometry(Part.Circle(App.Vector(0, 0, 0), App.Vector(0, 0, 1), 2.5), False)
sketch3.addConstraint(Sketcher.Constraint("Coincident", 0, 3, -1, 1))
sketch3.addConstraint(Sketcher.Constraint("Diameter", 0, 5.0))
pocket2 = doc.addObject("PartDesign::Pocket", "Pocket001")
body.addObject(pocket2)
pocket2.Profile = sketch3
pocket2.Length = 4

# Sketch on YZ plane
sketch4 = doc.addObject("Sketcher::SketchObject", "Sketch003")
body.addObject(sketch4)
sketch4.AttachmentSupport = (doc.YZ_Plane, [""])
sketch4.MapMode = "FlatFace"
sketch4.addGeometry(Part.Circle(App.Vector(0, 0, 0), App.Vector(0, 0, 1), 1.5), False)
sketch4.addConstraint(Sketcher.Constraint("Coincident", 0, 3, -1, 1))
sketch4.addConstraint(Sketcher.Constraint("Diameter", 0, 3.0))
doc.recompute()
hole = doc.addObject("PartDesign::Hole", "Hole")
body.addObject(hole)
hole.Profile = sketch4
hole.ThreadType = "None"
hole.Diameter = 3
hole.DepthType = "ThroughAll"
hole.Reversed = True

doc.recompute()
